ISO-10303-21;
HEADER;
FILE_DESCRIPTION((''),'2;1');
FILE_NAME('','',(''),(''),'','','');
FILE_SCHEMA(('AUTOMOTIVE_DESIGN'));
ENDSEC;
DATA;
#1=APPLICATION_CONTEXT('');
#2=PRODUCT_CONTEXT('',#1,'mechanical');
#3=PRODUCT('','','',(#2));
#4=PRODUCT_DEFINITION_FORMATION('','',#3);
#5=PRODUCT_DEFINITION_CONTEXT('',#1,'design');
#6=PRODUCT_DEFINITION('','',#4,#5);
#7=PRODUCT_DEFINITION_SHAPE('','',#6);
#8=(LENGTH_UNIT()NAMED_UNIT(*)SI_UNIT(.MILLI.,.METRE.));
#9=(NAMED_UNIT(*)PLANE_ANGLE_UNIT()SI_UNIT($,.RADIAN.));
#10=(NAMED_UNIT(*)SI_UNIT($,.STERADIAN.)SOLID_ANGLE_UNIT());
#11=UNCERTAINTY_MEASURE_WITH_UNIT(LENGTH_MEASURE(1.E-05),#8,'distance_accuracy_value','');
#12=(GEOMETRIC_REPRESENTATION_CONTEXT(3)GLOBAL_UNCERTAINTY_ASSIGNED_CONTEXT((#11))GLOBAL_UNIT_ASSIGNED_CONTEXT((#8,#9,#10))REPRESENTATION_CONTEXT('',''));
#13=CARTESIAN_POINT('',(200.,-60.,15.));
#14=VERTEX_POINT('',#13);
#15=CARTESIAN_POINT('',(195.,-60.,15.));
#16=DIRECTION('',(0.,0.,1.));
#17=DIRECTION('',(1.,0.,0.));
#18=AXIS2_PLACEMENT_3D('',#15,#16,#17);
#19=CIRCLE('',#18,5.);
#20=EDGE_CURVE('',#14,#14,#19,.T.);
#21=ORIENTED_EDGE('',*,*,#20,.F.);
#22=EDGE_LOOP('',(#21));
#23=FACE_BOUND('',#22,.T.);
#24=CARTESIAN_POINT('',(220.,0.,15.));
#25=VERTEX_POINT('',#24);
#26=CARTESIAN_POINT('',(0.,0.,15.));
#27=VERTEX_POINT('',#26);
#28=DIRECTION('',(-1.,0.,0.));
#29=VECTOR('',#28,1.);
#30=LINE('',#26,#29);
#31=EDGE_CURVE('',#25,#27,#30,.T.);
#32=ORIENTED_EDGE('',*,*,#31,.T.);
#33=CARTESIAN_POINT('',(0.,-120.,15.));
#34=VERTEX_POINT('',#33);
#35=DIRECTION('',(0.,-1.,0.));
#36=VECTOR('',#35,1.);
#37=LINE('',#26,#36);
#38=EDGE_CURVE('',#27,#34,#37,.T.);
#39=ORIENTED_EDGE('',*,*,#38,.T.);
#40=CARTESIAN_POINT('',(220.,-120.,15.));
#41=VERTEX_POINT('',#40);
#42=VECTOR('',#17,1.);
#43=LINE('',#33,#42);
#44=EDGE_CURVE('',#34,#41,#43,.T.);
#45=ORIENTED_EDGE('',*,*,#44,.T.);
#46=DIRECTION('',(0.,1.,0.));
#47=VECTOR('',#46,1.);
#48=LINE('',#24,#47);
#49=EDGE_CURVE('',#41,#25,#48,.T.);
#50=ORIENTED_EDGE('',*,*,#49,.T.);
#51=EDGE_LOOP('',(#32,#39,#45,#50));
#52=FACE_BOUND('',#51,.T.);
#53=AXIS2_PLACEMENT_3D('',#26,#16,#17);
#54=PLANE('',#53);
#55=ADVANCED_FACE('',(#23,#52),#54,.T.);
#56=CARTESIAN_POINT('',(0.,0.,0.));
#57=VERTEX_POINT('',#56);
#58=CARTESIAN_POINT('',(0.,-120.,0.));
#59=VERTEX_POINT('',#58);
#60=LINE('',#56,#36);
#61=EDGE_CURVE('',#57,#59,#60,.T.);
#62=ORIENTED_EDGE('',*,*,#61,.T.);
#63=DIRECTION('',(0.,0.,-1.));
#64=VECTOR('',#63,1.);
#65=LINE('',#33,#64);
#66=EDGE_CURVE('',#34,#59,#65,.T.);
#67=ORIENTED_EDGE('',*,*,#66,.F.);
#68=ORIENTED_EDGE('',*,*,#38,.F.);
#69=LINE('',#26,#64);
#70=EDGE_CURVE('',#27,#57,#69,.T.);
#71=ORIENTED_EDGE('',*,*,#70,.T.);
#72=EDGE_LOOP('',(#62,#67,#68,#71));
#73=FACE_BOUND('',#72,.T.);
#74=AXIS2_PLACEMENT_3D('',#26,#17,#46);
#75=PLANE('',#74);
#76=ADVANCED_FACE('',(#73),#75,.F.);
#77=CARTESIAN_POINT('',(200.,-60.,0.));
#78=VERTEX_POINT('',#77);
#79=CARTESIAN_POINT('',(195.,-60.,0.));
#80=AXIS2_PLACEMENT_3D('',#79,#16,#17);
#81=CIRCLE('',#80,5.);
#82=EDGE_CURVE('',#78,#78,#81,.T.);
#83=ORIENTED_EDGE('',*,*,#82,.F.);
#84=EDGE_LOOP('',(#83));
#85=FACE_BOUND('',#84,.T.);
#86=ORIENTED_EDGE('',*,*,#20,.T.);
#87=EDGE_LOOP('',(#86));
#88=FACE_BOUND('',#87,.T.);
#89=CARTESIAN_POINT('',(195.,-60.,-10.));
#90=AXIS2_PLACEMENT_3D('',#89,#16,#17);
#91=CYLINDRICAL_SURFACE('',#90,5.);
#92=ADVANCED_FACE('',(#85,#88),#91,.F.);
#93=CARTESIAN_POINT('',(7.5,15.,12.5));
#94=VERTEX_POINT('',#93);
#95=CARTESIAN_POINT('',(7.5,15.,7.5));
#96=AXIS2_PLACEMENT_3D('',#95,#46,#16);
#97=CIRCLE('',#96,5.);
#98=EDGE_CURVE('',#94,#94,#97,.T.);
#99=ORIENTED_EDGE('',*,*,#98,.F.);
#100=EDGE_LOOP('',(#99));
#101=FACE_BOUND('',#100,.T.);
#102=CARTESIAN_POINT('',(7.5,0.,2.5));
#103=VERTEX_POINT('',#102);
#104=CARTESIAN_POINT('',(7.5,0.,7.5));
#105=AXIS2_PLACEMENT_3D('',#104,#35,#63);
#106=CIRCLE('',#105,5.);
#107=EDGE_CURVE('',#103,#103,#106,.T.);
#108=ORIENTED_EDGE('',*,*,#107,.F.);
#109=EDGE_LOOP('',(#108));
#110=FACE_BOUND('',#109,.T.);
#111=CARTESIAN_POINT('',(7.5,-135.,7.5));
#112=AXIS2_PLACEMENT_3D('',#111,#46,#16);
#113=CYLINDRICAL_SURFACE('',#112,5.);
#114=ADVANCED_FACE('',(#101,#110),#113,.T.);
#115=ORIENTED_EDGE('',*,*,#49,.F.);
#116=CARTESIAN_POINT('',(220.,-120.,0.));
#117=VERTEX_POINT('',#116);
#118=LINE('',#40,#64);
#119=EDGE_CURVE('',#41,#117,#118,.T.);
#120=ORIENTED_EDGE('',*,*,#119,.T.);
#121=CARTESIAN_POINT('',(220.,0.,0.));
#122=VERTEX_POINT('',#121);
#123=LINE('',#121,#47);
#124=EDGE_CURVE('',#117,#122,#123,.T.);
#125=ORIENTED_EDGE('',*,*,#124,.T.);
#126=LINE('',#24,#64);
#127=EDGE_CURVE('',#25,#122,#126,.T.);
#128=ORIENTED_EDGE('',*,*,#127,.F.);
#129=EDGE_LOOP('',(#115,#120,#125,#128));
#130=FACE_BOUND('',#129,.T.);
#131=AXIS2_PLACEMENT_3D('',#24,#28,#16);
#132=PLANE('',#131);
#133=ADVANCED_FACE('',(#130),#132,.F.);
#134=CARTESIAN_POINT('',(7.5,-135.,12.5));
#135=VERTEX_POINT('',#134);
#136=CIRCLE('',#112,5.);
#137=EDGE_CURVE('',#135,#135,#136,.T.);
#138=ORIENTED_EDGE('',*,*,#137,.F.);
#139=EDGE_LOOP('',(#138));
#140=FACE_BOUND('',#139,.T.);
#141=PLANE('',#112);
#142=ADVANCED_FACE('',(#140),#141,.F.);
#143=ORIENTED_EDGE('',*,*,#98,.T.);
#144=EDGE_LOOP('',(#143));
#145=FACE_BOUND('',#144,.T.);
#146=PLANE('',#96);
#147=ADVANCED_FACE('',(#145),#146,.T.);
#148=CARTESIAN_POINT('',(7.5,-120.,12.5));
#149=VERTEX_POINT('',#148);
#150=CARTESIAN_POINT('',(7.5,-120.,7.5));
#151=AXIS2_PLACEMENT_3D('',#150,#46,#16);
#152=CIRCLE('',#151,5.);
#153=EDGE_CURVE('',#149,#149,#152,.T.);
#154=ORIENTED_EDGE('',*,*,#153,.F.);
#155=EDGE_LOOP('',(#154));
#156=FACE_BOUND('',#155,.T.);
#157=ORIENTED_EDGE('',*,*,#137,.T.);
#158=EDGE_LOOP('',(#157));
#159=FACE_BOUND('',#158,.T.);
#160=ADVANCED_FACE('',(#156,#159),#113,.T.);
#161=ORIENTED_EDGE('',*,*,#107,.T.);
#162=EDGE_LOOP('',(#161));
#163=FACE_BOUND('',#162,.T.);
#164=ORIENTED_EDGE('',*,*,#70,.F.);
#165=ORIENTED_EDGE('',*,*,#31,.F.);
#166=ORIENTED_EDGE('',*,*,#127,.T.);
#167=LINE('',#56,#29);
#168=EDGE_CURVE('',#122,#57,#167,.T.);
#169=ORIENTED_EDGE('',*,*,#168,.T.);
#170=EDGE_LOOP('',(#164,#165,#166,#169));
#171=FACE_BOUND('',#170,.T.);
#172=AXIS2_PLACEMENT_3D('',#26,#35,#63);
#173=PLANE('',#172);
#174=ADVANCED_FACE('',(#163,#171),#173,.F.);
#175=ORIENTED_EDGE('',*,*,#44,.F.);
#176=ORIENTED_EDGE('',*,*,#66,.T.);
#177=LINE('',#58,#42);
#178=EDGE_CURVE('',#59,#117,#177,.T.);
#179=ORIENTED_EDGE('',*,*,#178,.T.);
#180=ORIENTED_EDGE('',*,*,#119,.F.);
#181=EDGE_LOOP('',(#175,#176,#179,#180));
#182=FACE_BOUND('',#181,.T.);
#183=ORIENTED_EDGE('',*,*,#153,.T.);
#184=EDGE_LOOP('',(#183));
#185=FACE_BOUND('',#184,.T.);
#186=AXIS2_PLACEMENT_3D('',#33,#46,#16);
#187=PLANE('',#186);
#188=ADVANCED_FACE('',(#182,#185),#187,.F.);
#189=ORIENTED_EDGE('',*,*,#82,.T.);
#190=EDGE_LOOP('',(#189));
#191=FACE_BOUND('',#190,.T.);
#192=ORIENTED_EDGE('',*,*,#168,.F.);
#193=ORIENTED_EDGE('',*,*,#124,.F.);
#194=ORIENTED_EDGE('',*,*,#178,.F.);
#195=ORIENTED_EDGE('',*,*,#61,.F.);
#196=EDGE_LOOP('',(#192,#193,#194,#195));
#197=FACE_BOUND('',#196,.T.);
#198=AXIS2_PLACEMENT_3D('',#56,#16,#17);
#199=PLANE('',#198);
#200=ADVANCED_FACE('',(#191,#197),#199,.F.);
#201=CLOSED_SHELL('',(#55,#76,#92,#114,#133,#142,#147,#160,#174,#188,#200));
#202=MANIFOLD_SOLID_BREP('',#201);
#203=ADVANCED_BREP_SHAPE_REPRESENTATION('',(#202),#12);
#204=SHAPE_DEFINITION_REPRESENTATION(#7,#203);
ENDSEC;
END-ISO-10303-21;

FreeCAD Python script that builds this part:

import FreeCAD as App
import Part
import Sketcher
from FreeCAD import Vector

doc = App.newDocument("Part")
body = doc.addObject("PartDesign::Body", "Body")

# Sketch on XY plane
sketch1 = body.newObject("Sketcher::SketchObject", "Sketch")
sketch1.AttachmentSupport = (doc.getObject("XY_Plane"), [""])
sketch1.MapMode = "FlatFace"
sketch1.addGeometry(Part.LineSegment(Vector(0, 0, 0), Vector(0, -120, 0)), False)
sketch1.addGeometry(Part.LineSegment(Vector(0, -120, 0), Vector(220, -120, 0)), False)
sketch1.addGeometry(Part.LineSegment(Vector(220, -120, 0), Vector(220, 0, 0)), False)
sketch1.addGeometry(Part.LineSegment(Vector(220, 0, 0), Vector(0, 0, 0)), False)
sketch1.addConstraint(Sketcher.Constraint("Coincident", 0, 2, 1, 1))
sketch1.addConstraint(Sketcher.Constraint("Coincident", 1, 2, 2, 1))
sketch1.addConstraint(Sketcher.Constraint("Coincident", 2, 2, 3, 1))
sketch1.addConstraint(Sketcher.Constraint("Coincident", 3, 2, 0, 1))
sketch1.addConstraint(Sketcher.Constraint("Vertical", 0))
sketch1.addConstraint(Sketcher.Constraint("Horizontal", 1))
sketch1.addConstraint(Sketcher.Constraint("Vertical", 2))
sketch1.addConstraint(Sketcher.Constraint("Horizontal", 3))
sketch1.addConstraint(Sketcher.Constraint("Coincident", 3, 2, -1, 1))
sketch1.addConstraint(Sketcher.Constraint("DistanceX", 1, 1, 1, 2, 220.0))
sketch1.addConstraint(Sketcher.Constraint("DistanceY", 0, 2, 0, 1, 120.0))
pad1 = body.newObject("PartDesign::Pad", "Pad")
pad1.Profile = sketch1
pad1.Length = 15

# Sketch on XZ plane
sketch2 = body.newObject("Sketcher::SketchObject", "Sketch001")
sketch2.AttachmentSupport = (doc.getObject("XZ_Plane"), [""])
sketch2.MapMode = "FlatFace"
sketch2.addGeometry(Part.Circle(Vector(8, 8, 0), Vector(0, 0, 1), 5), False)
sketch2.addConstraint(Sketcher.Constraint("Diameter", 0, 10.0))
sketch2.addConstraint(Sketcher.Constraint("DistanceX", -1, 1, 0, 3, 7.5))
sketch2.addConstraint(Sketcher.Constraint("DistanceY", -1, 1, 0, 3, 7.5))
pad2 = body.newObject("PartDesign::Pad", "Pad001")
pad2.Profile = sketch2
pad2.Type = "TwoLengths"
pad2.Length = 15
pad2.Length2 = 135
pad2.Reversed = True

# Sketch on XY plane
sketch3 = body.newObject("Sketcher::SketchObject", "Sketch002")
sketch3.AttachmentSupport = (doc.getObject("XY_Plane"), [""])
sketch3.MapMode = "FlatFace"
sketch3.AttachmentOffset = App.Placement(Vector(0, 0, 15), App.Rotation())
sketch3.addGeometry(Part.Circle(Vector(195, -60, 0), Vector(0, 0, 1), 5), False)
sketch3.addConstraint(Sketcher.Constraint("Diameter", 0, 10.0))
sketch3.addConstraint(Sketcher.Constraint("DistanceX", -1, 1, 0, 3, 195.0))
sketch3.addConstraint(Sketcher.Constraint("DistanceY", 0, 3, -1, 1, 60.0))
pocket1 = body.newObject("PartDesign::Pocket", "Pocket")
pocket1.Profile = sketch3
pocket1.Length = 25

doc.recompute()
